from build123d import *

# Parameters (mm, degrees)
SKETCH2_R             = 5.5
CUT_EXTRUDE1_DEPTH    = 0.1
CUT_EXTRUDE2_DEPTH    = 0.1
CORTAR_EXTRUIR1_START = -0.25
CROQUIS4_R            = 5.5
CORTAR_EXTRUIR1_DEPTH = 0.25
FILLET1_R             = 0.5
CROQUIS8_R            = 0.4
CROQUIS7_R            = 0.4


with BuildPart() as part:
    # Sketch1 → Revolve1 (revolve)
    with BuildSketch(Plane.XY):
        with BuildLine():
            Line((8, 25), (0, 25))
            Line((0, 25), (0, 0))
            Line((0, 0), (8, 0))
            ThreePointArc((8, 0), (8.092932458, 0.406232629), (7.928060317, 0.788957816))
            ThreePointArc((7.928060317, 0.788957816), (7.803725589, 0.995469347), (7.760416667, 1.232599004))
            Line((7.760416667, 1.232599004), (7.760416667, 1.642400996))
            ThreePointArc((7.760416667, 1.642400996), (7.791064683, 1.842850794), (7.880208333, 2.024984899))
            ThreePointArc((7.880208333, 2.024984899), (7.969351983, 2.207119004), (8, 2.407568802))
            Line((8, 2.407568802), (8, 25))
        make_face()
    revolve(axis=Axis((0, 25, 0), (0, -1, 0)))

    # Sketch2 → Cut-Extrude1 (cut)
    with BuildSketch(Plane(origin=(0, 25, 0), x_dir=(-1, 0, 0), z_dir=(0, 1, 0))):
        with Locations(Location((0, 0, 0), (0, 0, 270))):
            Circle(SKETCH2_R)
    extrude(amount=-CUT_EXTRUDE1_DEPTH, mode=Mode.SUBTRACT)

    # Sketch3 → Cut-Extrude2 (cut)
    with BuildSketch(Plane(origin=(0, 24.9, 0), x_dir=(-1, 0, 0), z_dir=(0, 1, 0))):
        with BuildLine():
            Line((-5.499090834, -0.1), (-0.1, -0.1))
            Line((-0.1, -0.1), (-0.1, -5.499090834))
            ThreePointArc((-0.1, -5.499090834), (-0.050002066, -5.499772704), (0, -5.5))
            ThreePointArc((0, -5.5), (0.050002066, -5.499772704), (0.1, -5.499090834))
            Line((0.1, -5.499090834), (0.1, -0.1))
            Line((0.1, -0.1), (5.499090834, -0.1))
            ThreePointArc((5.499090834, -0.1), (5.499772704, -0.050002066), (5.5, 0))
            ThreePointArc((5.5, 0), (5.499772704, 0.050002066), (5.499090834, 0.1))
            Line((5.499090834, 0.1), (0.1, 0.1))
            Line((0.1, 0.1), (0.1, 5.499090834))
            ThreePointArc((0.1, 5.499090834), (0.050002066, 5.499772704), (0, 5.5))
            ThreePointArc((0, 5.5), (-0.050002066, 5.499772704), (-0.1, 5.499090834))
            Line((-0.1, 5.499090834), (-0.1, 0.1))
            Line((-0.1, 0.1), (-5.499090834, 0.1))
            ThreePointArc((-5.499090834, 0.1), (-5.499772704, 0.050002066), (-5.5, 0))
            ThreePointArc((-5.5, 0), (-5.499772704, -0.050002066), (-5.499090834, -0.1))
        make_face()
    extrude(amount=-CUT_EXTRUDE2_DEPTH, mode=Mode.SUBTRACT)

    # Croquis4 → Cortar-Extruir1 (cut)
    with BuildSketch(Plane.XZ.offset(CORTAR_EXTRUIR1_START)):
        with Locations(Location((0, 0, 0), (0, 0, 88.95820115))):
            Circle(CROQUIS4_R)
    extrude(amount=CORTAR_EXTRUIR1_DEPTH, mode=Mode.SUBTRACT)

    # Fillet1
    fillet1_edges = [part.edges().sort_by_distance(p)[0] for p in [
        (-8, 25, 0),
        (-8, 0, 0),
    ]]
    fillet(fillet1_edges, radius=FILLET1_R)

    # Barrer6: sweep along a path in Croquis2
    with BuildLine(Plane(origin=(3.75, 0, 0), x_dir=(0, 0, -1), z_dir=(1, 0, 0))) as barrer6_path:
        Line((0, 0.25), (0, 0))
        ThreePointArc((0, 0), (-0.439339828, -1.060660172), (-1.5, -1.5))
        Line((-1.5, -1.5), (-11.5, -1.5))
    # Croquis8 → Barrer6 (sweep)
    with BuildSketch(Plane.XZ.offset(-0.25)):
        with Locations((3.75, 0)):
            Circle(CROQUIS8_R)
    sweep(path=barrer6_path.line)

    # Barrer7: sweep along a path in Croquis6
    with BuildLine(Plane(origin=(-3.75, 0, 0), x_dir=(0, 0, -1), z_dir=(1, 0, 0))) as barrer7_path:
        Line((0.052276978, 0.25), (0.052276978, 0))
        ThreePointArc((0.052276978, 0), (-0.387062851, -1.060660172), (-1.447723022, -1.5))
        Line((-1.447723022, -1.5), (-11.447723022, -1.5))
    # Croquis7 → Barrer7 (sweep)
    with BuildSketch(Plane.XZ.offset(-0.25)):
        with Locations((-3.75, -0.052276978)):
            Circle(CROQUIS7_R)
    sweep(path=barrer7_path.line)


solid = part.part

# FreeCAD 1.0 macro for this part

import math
import FreeCAD as App
import Part
import Sketcher

V = App.Vector
Q = App.Units.Quantity


def edges_at(feature, points):
    """Names of the edges that pass closest to the given points."""
    edges = feature.Shape.Edges
    near = lambda p: min(range(len(edges)), key=lambda i: edges[i].distToShape(Part.Vertex(*p))[0])
    return sorted({f"Edge{near(p) + 1}" for p in points})

doc = App.newDocument("Part")
body = doc.addObject("PartDesign::Body", "Body")

# Sketch on XY plane
sketch1 = body.newObject("Sketcher::SketchObject", "Sketch")
sketch1.AttachmentSupport = (doc.getObject("XY_Plane"), [""])
sketch1.MapMode = "FlatFace"
sketch1.addGeometry(Part.LineSegment(V(8, 25, 0), V(0, 25, 0)), False)
sketch1.addGeometry(Part.LineSegment(V(0, 25, 0), V(0, 0, 0)), False)
sketch1.addGeometry(Part.LineSegment(V(0, 0, 0), V(8, 0, 0)), False)
sketch1.addGeometry(Part.ArcOfCircle(Part.Circle(V(7.424871, 0.345317, 0), V(0, 0, 1), 0.670833), math.radians(-30.981261), math.radians(41.401269)), False)
sketch1.addGeometry(Part.ArcOfCircle(Part.Circle(V(8.43125, 1.232599, 0), V(0, 0, 1), 0.670833), math.radians(180), math.radians(221.401269)), False)
sketch1.addGeometry(Part.LineSegment(V(7.760417, 1.232599, 0), V(7.760417, 1.642401, 0)), False)
sketch1.addGeometry(Part.ArcOfCircle(Part.Circle(V(8.43125, 1.642401, 0), V(0, 0, 1), 0.670833), math.radians(145.228056), math.radians(180)), False)
sketch1.addGeometry(Part.ArcOfCircle(Part.Circle(V(7.329167, 2.407569, 0), V(0, 0, 1), 0.670833), math.radians(-34.771944), math.radians(0)), False)
sketch1.addGeometry(Part.LineSegment(V(8, 2.407569, 0), V(8, 25, 0)), False)
sketch1.addConstraint(Sketcher.Constraint("Coincident", 0, 2, 1, 1))
sketch1.addConstraint(Sketcher.Constraint("Coincident", 1, 2, 2, 1))
sketch1.addConstraint(Sketcher.Constraint("Coincident", 2, 2, 3, 1))
sketch1.addConstraint(Sketcher.Constraint("Tangent", 3, 2, 4, 2))
sketch1.addConstraint(Sketcher.Constraint("Tangent", 4, 1, 5, 1))
sketch1.addConstraint(Sketcher.Constraint("Tangent", 5, 2, 6, 2))
sketch1.addConstraint(Sketcher.Constraint("Tangent", 6, 1, 7, 1))
sketch1.addConstraint(Sketcher.Constraint("Tangent", 7, 2, 8, 1))
sketch1.addConstraint(Sketcher.Constraint("Coincident", 8, 2, 0, 1))
sketch1.addConstraint(Sketcher.Constraint("Horizontal", 0))
sketch1.addConstraint(Sketcher.Constraint("Vertical", 1))
sketch1.addConstraint(Sketcher.Constraint("Horizontal", 2))
sketch1.addConstraint(Sketcher.Constraint("Vertical", 5))
sketch1.addConstraint(Sketcher.Constraint("Vertical", 8))
sketch1.addConstraint(Sketcher.Constraint("Coincident", 1, 2, -1, 1))
sketch1.addConstraint(Sketcher.Constraint("Equal", 3, 4))
sketch1.addConstraint(Sketcher.Constraint("Equal", 4, 6))
sketch1.addConstraint(Sketcher.Constraint("Equal", 6, 7))
sketch1.addConstraint(Sketcher.Constraint("Vertical", 2, 2, 7, 2))
sketch1.addConstraint(Sketcher.Constraint("DistanceX", 0, 2, 0, 1, Q("8 mm")))
sketch1.addConstraint(Sketcher.Constraint("DistanceY", 1, 2, 1, 1, Q("25 mm")))
sketch1.addConstraint(Sketcher.Constraint("DistanceY", 5, 1, 5, 2, Q("0.409802 mm")))
sketch1.addConstraint(Sketcher.Constraint("Radius", 3, Q("0.670833 mm")))
sketch1.addConstraint(Sketcher.Constraint("DistanceY", 8, 1, 8, 2, Q("22.592431 mm")))
sketch1.addConstraint(Sketcher.Constraint("DistanceY", -1, 1, 4, 3, Q("1.232599 mm")))
revolution = body.newObject("PartDesign::Revolution", "Revolution")
revolution.Profile = sketch1
revolution.ReferenceAxis = (sketch1, ["V_Axis"])
revolution.Angle = 360

# Sketch on XZ plane
sketch2 = body.newObject("Sketcher::SketchObject", "Sketch001")
sketch2.AttachmentSupport = (doc.getObject("XZ_Plane"), [""])
sketch2.MapMode = "FlatFace"
sketch2.AttachmentOffset = App.Placement(V(0, 0, -25), App.Rotation())
sketch2.addGeometry(Part.Circle(V(0, 0, 0), V(0, 0, 1), 5.5), False)
sketch2.addConstraint(Sketcher.Constraint("Coincident", 0, 3, -1, 1))
sketch2.addConstraint(Sketcher.Constraint("Diameter", 0, Q("11 mm")))
pocket1 = body.newObject("PartDesign::Pocket", "Pocket")
pocket1.Profile = sketch2
pocket1.Length = 0.1
pocket1.Reversed = True

# Sketch on XZ plane
sketch3 = body.newObject("Sketcher::SketchObject", "Sketch002")
sketch3.AttachmentSupport = (doc.getObject("XZ_Plane"), [""])
sketch3.MapMode = "FlatFace"
sketch3.AttachmentOffset = App.Placement(V(0, 0, -24.9), App.Rotation())
sketch3.addGeometry(Part.LineSegment(V(5.499091, -0.1, 0), V(0.1, -0.1, 0)), False)
sketch3.addGeometry(Part.LineSegment(V(0.1, -0.1, 0), V(0.1, -5.499091, 0)), False)
sketch3.addGeometry(Part.ArcOfCircle(Part.Circle(V(0, -0.000004, 0), V(0, 0, 1), 5.499996), math.radians(-90), math.radians(-88.958201)), False)
sketch3.addGeometry(Part.ArcOfCircle(Part.Circle(V(0, -0.000004, 0), V(0, 0, 1), 5.499996), math.radians(-91.041799), math.radians(-90)), False)
sketch3.addGeometry(Part.LineSegment(V(-0.1, -5.499091, 0), V(-0.1, -0.1, 0)), False)
sketch3.addGeometry(Part.LineSegment(V(-0.1, -0.1, 0), V(-5.499091, -0.1, 0)), False)
sketch3.addGeometry(Part.ArcOfCircle(Part.Circle(V(-0.000004, 0, 0), V(0, 0, 1), 5.499996), math.radians(180), math.radians(181.041799)), False)
sketch3.addGeometry(Part.ArcOfCircle(Part.Circle(V(-0.000004, 0, 0), V(0, 0, 1), 5.499996), math.radians(178.958201), math.radians(180)), False)
sketch3.addGeometry(Part.LineSegment(V(-5.499091, 0.1, 0), V(-0.1, 0.1, 0)), False)
sketch3.addGeometry(Part.LineSegment(V(-0.1, 0.1, 0), V(-0.1, 5.499091, 0)), False)
sketch3.addGeometry(Part.ArcOfCircle(Part.Circle(V(0, 0.000004, 0), V(0, 0, 1), 5.499996), math.radians(90), math.radians(91.041799)), False)
sketch3.addGeometry(Part.ArcOfCircle(Part.Circle(V(0, 0.000004, 0), V(0, 0, 1), 5.499996), math.radians(88.958201), math.radians(90)), False)
sketch3.addGeometry(Part.LineSegment(V(0.1, 5.499091, 0), V(0.1, 0.1, 0)), False)
sketch3.addGeometry(Part.LineSegment(V(0.1, 0.1, 0), V(5.499091, 0.1, 0)), False)
sketch3.addGeometry(Part.ArcOfCircle(Part.Circle(V(0.000004, 0, 0), V(0, 0, 1), 5.499996), math.radians(0), math.radians(1.041799)), False)
sketch3.addGeometry(Part.ArcOfCircle(Part.Circle(V(0.000004, 0, 0), V(0, 0, 1), 5.499996), math.radians(-1.041799), math.radians(0)), False)
sketch3.addConstraint(Sketcher.Constraint("Coincident", 0, 2, 1, 1))
sketch3.addConstraint(Sketcher.Constraint("Coincident", 1, 2, 2, 2))
sketch3.addConstraint(Sketcher.Constraint("Tangent", 2, 1, 3, 2))
sketch3.addConstraint(Sketcher.Constraint("Coincident", 3, 1, 4, 1))
sketch3.addConstraint(Sketcher.Constraint("Coincident", 4, 2, 5, 1))
sketch3.addConstraint(Sketcher.Constraint("Coincident", 5, 2, 6, 2))
sketch3.addConstraint(Sketcher.Constraint("Tangent", 6, 1, 7, 2))
sketch3.addConstraint(Sketcher.Constraint("Coincident", 7, 1, 8, 1))
sketch3.addConstraint(Sketcher.Constraint("Coincident", 8, 2, 9, 1))
sketch3.addConstraint(Sketcher.Constraint("Coincident", 9, 2, 10, 2))
sketch3.addConstraint(Sketcher.Constraint("Tangent", 10, 1, 11, 2))
sketch3.addConstraint(Sketcher.Constraint("Coincident", 11, 1, 12, 1))
sketch3.addConstraint(Sketcher.Constraint("Coincident", 12, 2, 13, 1))
sketch3.addConstraint(Sketcher.Constraint("Coincident", 13, 2, 14, 2))
sketch3.addConstraint(Sketcher.Constraint("Tangent", 14, 1, 15, 2))
sketch3.addConstraint(Sketcher.Constraint("Coincident", 15, 1, 0, 1))
sketch3.addConstraint(Sketcher.Constraint("Horizontal", 0))
sketch3.addConstraint(Sketcher.Constraint("Vertical", 1))
sketch3.addConstraint(Sketcher.Constraint("Vertical", 4))
sketch3.addConstraint(Sketcher.Constraint("Horizontal", 5))
sketch3.addConstraint(Sketcher.Constraint("Horizontal", 8))
sketch3.addConstraint(Sketcher.Constraint("Vertical", 9))
sketch3.addConstraint(Sketcher.Constraint("Vertical", 12))
sketch3.addConstraint(Sketcher.Constraint("Horizontal", 13))
sketch3.addConstraint(Sketcher.Constraint("Coincident", 2, 3, -1, 1))
sketch3.addConstraint(Sketcher.Constraint("Coincident", 6, 3, -1, 1))
sketch3.addConstraint(Sketcher.Constraint("Coincident", 10, 3, -1, 1))
sketch3.addConstraint(Sketcher.Constraint("Coincident", 14, 3, -1, 1))
sketch3.addConstraint(Sketcher.Constraint("Equal", 2, 3))
sketch3.addConstraint(Sketcher.Constraint("Equal", 3, 6))
sketch3.addConstraint(Sketcher.Constraint("Equal", 6, 7))
sketch3.addConstraint(Sketcher.Constraint("Equal", 7, 10))
sketch3.addConstraint(Sketcher.Constraint("Equal", 10, 11))
sketch3.addConstraint(Sketcher.Constraint("Equal", 11, 14))
sketch3.addConstraint(Sketcher.Constraint("Equal", 14, 15))
sketch3.addConstraint(Sketcher.Constraint("Symmetric", 0, 2, 8, 2, -1, 1))
sketch3.addConstraint(Sketcher.Constraint("Symmetric", 4, 2, 12, 2, -1, 1))
sketch3.addConstraint(Sketcher.Constraint("Symmetric", 0, 2, 4, 2, -2))
sketch3.addConstraint(Sketcher.Constraint("PointOnObject", 2, 1, -2))
sketch3.addConstraint(Sketcher.Constraint("PointOnObject", 6, 1, -1))
sketch3.addConstraint(Sketcher.Constraint("PointOnObject", 10, 1, -2))
sketch3.addConstraint(Sketcher.Constraint("PointOnObject", 14, 1, -1))
sketch3.addConstraint(Sketcher.Constraint("Equal", 13, 1))
sketch3.addConstraint(Sketcher.Constraint("DistanceX", -1, 1, 0, 2, Q("0.1 mm")))
sketch3.addConstraint(Sketcher.Constraint("DistanceY", 2, 1, -1, 1, Q("5.5 mm")))
pocket2 = body.newObject("PartDesign::Pocket", "Pocket001")
pocket2.Profile = sketch3
pocket2.Length = 0.1
pocket2.Reversed = True

# Sketch on XZ plane
sketch4 = body.newObject("Sketcher::SketchObject", "Sketch003")
sketch4.AttachmentSupport = (doc.getObject("XZ_Plane"), [""])
sketch4.MapMode = "FlatFace"
sketch4.AttachmentOffset = App.Placement(V(0, 0, -0.25), App.Rotation())
sketch4.addGeometry(Part.Circle(V(0, 0, 0), V(0, 0, 1), 5.5), False)
sketch4.addConstraint(Sketcher.Constraint("Coincident", 0, 3, -1, 1))
sketch4.addConstraint(Sketcher.Constraint("Diameter", 0, Q("11 mm")))
pocket3 = body.newObject("PartDesign::Pocket", "Pocket002")
pocket3.Profile = sketch4
pocket3.Length = 0.25
pocket3.Reversed = True
doc.recompute()

fillet = body.newObject("PartDesign::Fillet", "Fillet")
fillet.Base = (pocket3, edges_at(pocket3, [(-8, 25, 0), (-8, 0, 0)]))
fillet.Radius = 0.5

# Sketch on XZ plane
sketch5 = body.newObject("Sketcher::SketchObject", "Sketch004")
sketch5.AttachmentSupport = (doc.getObject("XZ_Plane"), [""])
sketch5.MapMode = "FlatFace"
sketch5.AttachmentOffset = App.Placement(V(0, 0, -0.25), App.Rotation())
sketch5.addGeometry(Part.Circle(V(3.75, 0, 0), V(0, 0, 1), 0.4), False)
sketch5.addConstraint(Sketcher.Constraint("PointOnObject", 0, 3, -1))
sketch5.addConstraint(Sketcher.Constraint("Diameter", 0, Q("0.8 mm")))
sketch5.addConstraint(Sketcher.Constraint("DistanceX", -1, 1, 0, 3, Q("3.75 mm")))

# Sketch on YZ plane
sketch6 = body.newObject("Sketcher::SketchObject", "Sketch005")
sketch6.AttachmentSupport = (doc.getObject("YZ_Plane"), [""])
sketch6.MapMode = "FlatFace"
sketch6.AttachmentOffset = App.Placement(V(0, 0, 3.75), App.Rotation())
sketch6.addGeometry(Part.LineSegment(V(0.25, 0, 0), V(0, 0, 0)), False)
sketch6.addGeometry(Part.ArcOfCircle(Part.Circle(V(0, 1.5, 0), V(0, 0, 1), 1.5), math.radians(180), math.radians(270)), False)
sketch6.addGeometry(Part.LineSegment(V(-1.5, 1.5, 0), V(-1.5, 11.5, 0)), False)
sketch6.addConstraint(Sketcher.Constraint("Tangent", 0, 2, 1, 2))
sketch6.addConstraint(Sketcher.Constraint("Tangent", 1, 1, 2, 1))
sketch6.addConstraint(Sketcher.Constraint("Horizontal", 0))
sketch6.addConstraint(Sketcher.Constraint("Vertical", 2))
sketch6.addConstraint(Sketcher.Constraint("Coincident", 0, 2, -1, 1))
sketch6.addConstraint(Sketcher.Constraint("Radius", 1, Q("1.5 mm")))
sketch6.addConstraint(Sketcher.Constraint("DistanceY", 2, 1, 2, 2, Q("10 mm")))
sketch6.addConstraint(Sketcher.Constraint("DistanceX", 0, 2, 0, 1, Q("0.25 mm")))
doc.recompute()

additivepipe = body.newObject("PartDesign::AdditivePipe", "AdditivePipe")
additivepipe.Profile = sketch5
additivepipe.Spine = (sketch6, ["Edge1", "Edge2", "Edge3"])

# Sketch on XZ plane
sketch7 = body.newObject("Sketcher::SketchObject", "Sketch006")
sketch7.AttachmentSupport = (doc.getObject("XZ_Plane"), [""])
sketch7.MapMode = "FlatFace"
sketch7.AttachmentOffset = App.Placement(V(0, 0, -0.25), App.Rotation())
sketch7.addGeometry(Part.Circle(V(-3.75, -0.052277, 0), V(0, 0, 1), 0.4), False)
sketch7.addConstraint(Sketcher.Constraint("Diameter", 0, Q("0.8 mm")))
sketch7.addConstraint(Sketcher.Constraint("DistanceX", 0, 3, -1, 1, Q("3.75 mm")))
sketch7.addConstraint(Sketcher.Constraint("DistanceY", 0, 3, -1, 1, Q("0.052277 mm")))

# Sketch on YZ plane
sketch8 = body.newObject("Sketcher::SketchObject", "Sketch007")
sketch8.AttachmentSupport = (doc.getObject("YZ_Plane"), [""])
sketch8.MapMode = "FlatFace"
sketch8.AttachmentOffset = App.Placement(V(0, 0, -3.75), App.Rotation())
sketch8.addGeometry(Part.LineSegment(V(0.25, -0.052277, 0), V(0, -0.052277, 0)), False)
sketch8.addGeometry(Part.ArcOfCircle(Part.Circle(V(0, 1.447723, 0), V(0, 0, 1), 1.5), math.radians(-180), math.radians(-90)), False)
sketch8.addGeometry(Part.LineSegment(V(-1.5, 1.447723, 0), V(-1.5, 11.447723, 0)), False)
sketch8.addConstraint(Sketcher.Constraint("Tangent", 0, 2, 1, 2))
sketch8.addConstraint(Sketcher.Constraint("Tangent", 1, 1, 2, 1))
sketch8.addConstraint(Sketcher.Constraint("Horizontal", 0))
sketch8.addConstraint(Sketcher.Constraint("Vertical", 2))
sketch8.addConstraint(Sketcher.Constraint("PointOnObject", 1, 3, -2))
sketch8.addConstraint(Sketcher.Constraint("Radius", 1, Q("1.5 mm")))
sketch8.addConstraint(Sketcher.Constraint("DistanceY", 2, 1, 2, 2, Q("10 mm")))
sketch8.addConstraint(Sketcher.Constraint("DistanceX", 0, 2, 0, 1, Q("0.25 mm")))
sketch8.addConstraint(Sketcher.Constraint("DistanceY", -1, 1, 1, 3, Q("1.447723 mm")))
doc.recompute()

additivepipe2 = body.newObject("PartDesign::AdditivePipe", "AdditivePipe001")
additivepipe2.Profile = sketch7
additivepipe2.Spine = (sketch8, ["Edge1", "Edge2", "Edge3"])

doc.recompute()
